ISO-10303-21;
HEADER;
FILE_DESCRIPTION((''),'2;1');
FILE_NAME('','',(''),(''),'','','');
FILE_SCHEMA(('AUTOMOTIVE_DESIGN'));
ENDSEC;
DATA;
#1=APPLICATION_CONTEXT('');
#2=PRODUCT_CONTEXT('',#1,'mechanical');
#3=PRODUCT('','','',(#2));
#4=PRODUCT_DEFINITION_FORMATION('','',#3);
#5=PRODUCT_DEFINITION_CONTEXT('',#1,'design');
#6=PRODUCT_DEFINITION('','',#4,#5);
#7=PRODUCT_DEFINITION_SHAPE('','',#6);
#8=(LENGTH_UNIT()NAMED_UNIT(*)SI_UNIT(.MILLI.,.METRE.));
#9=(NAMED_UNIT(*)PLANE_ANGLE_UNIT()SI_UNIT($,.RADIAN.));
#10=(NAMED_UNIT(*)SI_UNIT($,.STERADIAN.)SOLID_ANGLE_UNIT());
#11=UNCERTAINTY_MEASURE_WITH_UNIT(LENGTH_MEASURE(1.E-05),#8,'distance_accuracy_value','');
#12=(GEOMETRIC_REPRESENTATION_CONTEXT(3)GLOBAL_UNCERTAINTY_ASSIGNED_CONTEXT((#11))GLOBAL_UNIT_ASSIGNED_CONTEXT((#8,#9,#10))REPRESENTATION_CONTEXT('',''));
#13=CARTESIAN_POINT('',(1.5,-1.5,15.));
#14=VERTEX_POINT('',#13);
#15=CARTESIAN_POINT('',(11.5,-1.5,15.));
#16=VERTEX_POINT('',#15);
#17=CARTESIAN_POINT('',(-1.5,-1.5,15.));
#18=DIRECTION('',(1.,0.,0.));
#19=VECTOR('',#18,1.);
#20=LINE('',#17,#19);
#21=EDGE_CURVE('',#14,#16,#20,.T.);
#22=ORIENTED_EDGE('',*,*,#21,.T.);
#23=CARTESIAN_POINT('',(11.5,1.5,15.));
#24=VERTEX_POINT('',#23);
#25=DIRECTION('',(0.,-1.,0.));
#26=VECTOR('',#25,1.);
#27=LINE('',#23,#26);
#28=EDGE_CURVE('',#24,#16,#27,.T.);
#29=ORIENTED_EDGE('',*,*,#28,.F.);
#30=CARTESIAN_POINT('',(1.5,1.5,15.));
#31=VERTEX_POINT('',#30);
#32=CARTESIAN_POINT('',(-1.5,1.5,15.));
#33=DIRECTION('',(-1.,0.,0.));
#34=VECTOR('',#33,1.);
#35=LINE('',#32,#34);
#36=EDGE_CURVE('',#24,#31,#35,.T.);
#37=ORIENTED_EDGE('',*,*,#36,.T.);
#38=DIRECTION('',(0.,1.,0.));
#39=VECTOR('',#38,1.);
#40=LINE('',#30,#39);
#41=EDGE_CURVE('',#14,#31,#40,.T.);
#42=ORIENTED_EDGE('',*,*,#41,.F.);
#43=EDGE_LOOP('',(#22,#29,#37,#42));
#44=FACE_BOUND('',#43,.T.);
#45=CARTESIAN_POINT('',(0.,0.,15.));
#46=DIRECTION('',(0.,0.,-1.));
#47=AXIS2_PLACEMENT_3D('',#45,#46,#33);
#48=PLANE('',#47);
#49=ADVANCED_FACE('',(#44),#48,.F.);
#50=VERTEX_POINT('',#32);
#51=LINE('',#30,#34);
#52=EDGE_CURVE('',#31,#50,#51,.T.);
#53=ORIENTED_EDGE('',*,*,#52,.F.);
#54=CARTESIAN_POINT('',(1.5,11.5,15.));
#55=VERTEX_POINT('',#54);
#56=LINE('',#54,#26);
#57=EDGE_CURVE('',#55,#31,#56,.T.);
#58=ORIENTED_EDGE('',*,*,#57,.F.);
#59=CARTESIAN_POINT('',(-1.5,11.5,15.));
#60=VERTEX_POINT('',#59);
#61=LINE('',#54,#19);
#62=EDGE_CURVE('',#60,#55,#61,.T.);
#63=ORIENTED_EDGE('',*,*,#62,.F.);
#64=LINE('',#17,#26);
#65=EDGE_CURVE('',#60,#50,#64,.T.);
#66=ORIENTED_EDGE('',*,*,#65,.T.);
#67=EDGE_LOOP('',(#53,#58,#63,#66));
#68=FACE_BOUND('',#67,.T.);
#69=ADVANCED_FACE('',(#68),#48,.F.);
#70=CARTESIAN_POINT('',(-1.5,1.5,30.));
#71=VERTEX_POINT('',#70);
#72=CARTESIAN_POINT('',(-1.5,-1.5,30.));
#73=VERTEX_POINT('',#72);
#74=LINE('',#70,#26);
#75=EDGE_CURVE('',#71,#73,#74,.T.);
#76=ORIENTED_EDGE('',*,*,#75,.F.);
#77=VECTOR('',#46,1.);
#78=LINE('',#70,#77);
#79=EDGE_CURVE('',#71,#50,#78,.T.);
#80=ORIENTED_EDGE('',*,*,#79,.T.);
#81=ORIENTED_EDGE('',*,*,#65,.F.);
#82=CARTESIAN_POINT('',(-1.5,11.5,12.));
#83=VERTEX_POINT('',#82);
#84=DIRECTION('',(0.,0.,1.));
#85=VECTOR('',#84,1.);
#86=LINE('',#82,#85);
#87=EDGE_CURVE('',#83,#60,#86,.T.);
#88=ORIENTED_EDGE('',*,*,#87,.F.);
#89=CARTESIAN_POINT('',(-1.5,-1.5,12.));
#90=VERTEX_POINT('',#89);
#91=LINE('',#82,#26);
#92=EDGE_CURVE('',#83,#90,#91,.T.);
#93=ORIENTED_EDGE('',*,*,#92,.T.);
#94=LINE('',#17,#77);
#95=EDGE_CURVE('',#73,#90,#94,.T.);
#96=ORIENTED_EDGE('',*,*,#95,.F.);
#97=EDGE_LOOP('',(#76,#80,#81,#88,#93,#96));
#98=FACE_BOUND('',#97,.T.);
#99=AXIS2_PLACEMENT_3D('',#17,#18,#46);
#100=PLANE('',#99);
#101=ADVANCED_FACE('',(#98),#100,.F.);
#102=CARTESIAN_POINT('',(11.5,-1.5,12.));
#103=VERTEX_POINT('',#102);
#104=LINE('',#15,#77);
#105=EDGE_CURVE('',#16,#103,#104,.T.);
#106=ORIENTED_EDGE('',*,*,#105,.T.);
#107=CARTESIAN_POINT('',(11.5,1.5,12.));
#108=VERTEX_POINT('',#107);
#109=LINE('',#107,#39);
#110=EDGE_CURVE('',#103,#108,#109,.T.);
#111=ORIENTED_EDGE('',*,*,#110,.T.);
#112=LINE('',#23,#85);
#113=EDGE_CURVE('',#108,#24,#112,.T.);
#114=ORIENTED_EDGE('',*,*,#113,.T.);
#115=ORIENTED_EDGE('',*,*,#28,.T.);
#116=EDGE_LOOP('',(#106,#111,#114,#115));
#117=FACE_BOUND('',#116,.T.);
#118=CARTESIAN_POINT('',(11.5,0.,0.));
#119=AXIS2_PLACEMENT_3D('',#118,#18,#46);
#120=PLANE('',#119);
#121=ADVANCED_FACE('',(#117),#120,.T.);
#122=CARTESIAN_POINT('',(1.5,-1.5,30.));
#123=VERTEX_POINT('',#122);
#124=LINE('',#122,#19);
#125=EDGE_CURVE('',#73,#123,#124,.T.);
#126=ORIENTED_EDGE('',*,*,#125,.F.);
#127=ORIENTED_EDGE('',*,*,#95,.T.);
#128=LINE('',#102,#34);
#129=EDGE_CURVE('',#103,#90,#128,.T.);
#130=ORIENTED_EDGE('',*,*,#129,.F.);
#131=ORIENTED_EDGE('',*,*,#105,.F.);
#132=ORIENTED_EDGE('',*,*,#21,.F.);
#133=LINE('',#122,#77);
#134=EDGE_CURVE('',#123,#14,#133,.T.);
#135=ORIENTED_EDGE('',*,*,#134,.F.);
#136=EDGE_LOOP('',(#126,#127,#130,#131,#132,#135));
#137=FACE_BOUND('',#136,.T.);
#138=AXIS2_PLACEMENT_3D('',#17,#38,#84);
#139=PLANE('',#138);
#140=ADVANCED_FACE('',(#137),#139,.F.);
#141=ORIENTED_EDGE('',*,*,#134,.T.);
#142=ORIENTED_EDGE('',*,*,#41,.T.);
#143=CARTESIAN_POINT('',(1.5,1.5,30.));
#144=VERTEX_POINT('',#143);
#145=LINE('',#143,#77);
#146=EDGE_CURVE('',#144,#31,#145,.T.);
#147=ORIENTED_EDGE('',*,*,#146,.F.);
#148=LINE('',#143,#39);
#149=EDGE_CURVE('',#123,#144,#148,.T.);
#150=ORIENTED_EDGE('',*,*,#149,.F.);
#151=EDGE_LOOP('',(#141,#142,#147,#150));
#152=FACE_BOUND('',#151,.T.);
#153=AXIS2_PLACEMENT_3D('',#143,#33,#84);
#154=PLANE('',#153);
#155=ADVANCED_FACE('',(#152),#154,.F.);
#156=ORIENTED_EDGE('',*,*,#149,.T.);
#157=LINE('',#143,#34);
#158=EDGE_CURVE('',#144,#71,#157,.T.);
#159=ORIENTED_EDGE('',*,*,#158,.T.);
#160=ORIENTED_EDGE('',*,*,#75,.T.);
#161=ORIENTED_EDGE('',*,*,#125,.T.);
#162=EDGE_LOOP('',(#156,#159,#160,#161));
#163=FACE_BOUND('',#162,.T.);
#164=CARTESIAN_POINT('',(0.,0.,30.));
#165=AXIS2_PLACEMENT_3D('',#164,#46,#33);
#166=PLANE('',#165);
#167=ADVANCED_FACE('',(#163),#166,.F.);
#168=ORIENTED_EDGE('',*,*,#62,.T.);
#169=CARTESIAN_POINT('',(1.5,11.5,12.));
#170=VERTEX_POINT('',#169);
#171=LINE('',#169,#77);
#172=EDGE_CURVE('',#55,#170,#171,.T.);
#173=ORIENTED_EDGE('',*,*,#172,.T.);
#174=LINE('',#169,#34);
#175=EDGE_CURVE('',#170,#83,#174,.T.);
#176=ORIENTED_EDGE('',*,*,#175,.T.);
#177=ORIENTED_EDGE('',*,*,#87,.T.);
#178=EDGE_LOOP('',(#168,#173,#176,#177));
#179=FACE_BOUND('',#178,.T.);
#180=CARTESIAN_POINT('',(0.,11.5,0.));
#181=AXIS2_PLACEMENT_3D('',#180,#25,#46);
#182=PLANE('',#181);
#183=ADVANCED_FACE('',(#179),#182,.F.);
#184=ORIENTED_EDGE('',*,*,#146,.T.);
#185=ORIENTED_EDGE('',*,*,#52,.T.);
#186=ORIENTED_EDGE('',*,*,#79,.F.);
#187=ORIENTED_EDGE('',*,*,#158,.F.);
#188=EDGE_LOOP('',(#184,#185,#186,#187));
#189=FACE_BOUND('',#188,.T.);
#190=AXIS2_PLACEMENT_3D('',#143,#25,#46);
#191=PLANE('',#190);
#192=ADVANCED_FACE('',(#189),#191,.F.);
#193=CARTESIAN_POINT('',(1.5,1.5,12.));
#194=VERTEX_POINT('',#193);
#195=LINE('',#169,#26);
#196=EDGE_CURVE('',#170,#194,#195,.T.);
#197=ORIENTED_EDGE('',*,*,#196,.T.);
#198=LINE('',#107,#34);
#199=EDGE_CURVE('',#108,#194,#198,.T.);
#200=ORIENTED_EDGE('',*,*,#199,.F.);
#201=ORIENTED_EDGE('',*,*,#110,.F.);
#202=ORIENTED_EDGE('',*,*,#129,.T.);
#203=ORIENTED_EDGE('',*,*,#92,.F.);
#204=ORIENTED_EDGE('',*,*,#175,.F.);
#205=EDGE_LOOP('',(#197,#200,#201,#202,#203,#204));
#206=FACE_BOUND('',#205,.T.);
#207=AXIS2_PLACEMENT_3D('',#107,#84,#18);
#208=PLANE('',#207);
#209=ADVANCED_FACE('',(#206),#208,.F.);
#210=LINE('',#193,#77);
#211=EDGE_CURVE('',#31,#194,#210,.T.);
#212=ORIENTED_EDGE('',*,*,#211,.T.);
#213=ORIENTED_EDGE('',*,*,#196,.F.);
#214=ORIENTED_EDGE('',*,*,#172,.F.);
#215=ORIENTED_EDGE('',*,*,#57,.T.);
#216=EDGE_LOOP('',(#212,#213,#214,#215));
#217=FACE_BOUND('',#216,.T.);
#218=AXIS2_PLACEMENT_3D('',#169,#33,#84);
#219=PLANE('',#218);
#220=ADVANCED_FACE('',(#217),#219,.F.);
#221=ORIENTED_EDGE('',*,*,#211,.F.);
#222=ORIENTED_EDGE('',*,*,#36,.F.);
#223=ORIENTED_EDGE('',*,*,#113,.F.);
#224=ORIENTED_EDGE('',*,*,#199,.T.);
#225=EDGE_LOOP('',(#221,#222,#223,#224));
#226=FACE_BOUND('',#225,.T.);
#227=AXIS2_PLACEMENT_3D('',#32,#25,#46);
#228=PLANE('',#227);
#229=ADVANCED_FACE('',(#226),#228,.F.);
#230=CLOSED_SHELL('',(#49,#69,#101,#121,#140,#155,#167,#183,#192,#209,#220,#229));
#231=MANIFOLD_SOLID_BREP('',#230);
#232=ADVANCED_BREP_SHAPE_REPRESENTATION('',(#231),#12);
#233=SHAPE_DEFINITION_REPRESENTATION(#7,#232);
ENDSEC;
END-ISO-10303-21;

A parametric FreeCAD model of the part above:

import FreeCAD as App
import Part
import Sketcher


def add_polygon(sketch, points):
    """Adds a closed chain of lines whose ends are joined by coincident constraints."""
    first, n = sketch.GeometryCount, len(points)
    for a, b in zip(points, points[1:] + points[:1]):
        sketch.addGeometry(Part.LineSegment(App.Vector(*a, 0), App.Vector(*b, 0)), False)
    for i in range(n):
        sketch.addConstraint(Sketcher.Constraint("Coincident", first + i, 2, first + (i + 1) % n, 1))

doc = App.newDocument("Part")
body = doc.addObject("PartDesign::Body", "Body")

# Sketch on XY plane
sketch1 = body.newObject("Sketcher::SketchObject", "Sketch")
sketch1.AttachmentSupport = (doc.getObject("XY_Plane"), [""])
sketch1.MapMode = "FlatFace"
add_polygon(sketch1, [(-1.5, 1.5), (-1.5, -1.5), (1.5, -1.5), (1.5, 1.5)])  # lines 0-3
sketch1.addConstraint([
    Sketcher.Constraint("Vertical", 0),
    Sketcher.Constraint("Horizontal", 1),
    Sketcher.Constraint("Vertical", 2),
    Sketcher.Constraint("Horizontal", 3),
    Sketcher.Constraint("Symmetric", 0, 2, 2, 2, -1, 1),
    Sketcher.Constraint("Equal", 3, 0),
    Sketcher.Constraint("DistanceX", 1, 1, 1, 2, 3.0),
])
pad1 = body.newObject("PartDesign::Pad", "Pad")
pad1.Profile = sketch1
pad1.Length = 15

# Sketch on YZ plane
sketch2 = body.newObject("Sketcher::SketchObject", "Sketch001")
sketch2.AttachmentSupport = (doc.getObject("YZ_Plane"), [""])
sketch2.MapMode = "FlatFace"
sketch2.AttachmentOffset = App.Placement(App.Vector(0, 0, 1.5), App.Rotation())
add_polygon(sketch2, [(1.5, 15), (-1.5, 15), (-1.5, 12), (1.5, 12)])  # lines 0-3
sketch2.addConstraint([
    Sketcher.Constraint("Horizontal", 0),
    Sketcher.Constraint("Vertical", 1),
    Sketcher.Constraint("Horizontal", 2),
    Sketcher.Constraint("Vertical", 3),
    Sketcher.Constraint("Equal", 2, 1),
    Sketcher.Constraint("DistanceX", 0, 2, 0, 1, 3.0),
    Sketcher.Constraint("DistanceY", -1, 1, 0, 2, 15.0),
    Sketcher.Constraint("DistanceX", 0, 2, -1, 1, 1.5),
])
pad2 = body.newObject("PartDesign::Pad", "Pad001")
pad2.Profile = sketch2
pad2.Length = 10

# Sketch on XZ plane
sketch3 = body.newObject("Sketcher::SketchObject", "Sketch002")
sketch3.AttachmentSupport = (doc.getObject("XZ_Plane"), [""])
sketch3.MapMode = "FlatFace"
sketch3.AttachmentOffset = App.Placement(App.Vector(0, 0, -1.5), App.Rotation())
add_polygon(sketch3, [(-1.5, 12), (-1.5, 15), (1.5, 15), (1.5, 12)])  # lines 0-3
sketch3.addConstraint([
    Sketcher.Constraint("Vertical", 0),
    Sketcher.Constraint("Horizontal", 1),
    Sketcher.Constraint("Vertical", 2),
    Sketcher.Constraint("Horizontal", 3),
    Sketcher.Constraint("Equal", 3, 0),
    Sketcher.Constraint("DistanceX", 1, 1, 1, 2, 3.0),
    Sketcher.Constraint("DistanceY", -1, 1, 0, 2, 15.0),
    Sketcher.Constraint("DistanceX", 0, 2, -1, 1, 1.5),
])
pad3 = body.newObject("PartDesign::Pad", "Pad002")
pad3.Profile = sketch3
pad3.Length = 10
pad3.Reversed = True

# Sketch on XY plane
sketch4 = body.newObject("Sketcher::SketchObject", "Sketch003")
sketch4.AttachmentSupport = (doc.getObject("XY_Plane"), [""])
sketch4.MapMode = "FlatFace"
sketch4.AttachmentOffset = App.Placement(App.Vector(0, 0, 15), App.Rotation())
add_polygon(sketch4, [(-1.5, 1.5), (-1.5, -1.5), (1.5, -1.5), (1.5, 1.5)])  # lines 0-3
sketch4.addConstraint([
    Sketcher.Constraint("Vertical", 0),
    Sketcher.Constraint("Horizontal", 1),
    Sketcher.Constraint("Vertical", 2),
    Sketcher.Constraint("Horizontal", 3),
    Sketcher.Constraint("Symmetric", 0, 2, 2, 2, -1, 1),
    Sketcher.Constraint("Equal", 3, 0),
    Sketcher.Constraint("DistanceX", 1, 1, 1, 2, 3.0),
])
pad4 = body.newObject("PartDesign::Pad", "Pad003")
pad4.Profile = sketch4
pad4.Length = 15

# Sketch on XY plane
sketch5 = body.newObject("Sketcher::SketchObject", "Sketch004")
sketch5.AttachmentSupport = (doc.getObject("XY_Plane"), [""])
sketch5.MapMode = "FlatFace"
add_polygon(sketch5, [(-1.5, 1.5), (-1.5, -1.5), (1.5, -1.5), (1.5, 1.5)])  # lines 0-3
sketch5.addConstraint([
    Sketcher.Constraint("Vertical", 0),
    Sketcher.Constraint("Horizontal", 1),
    Sketcher.Constraint("Vertical", 2),
    Sketcher.Constraint("Horizontal", 3),
    Sketcher.Constraint("Symmetric", 0, 2, 2, 2, -1, 1),
    Sketcher.Constraint("Equal", 3, 0),
    Sketcher.Constraint("DistanceX", 1, 1, 1, 2, 3.0),
])
pocket1 = body.newObject("PartDesign::Pocket", "Pocket")
pocket1.Profile = sketch5
pocket1.Length = 12
pocket1.Reversed = True

doc.recompute()
